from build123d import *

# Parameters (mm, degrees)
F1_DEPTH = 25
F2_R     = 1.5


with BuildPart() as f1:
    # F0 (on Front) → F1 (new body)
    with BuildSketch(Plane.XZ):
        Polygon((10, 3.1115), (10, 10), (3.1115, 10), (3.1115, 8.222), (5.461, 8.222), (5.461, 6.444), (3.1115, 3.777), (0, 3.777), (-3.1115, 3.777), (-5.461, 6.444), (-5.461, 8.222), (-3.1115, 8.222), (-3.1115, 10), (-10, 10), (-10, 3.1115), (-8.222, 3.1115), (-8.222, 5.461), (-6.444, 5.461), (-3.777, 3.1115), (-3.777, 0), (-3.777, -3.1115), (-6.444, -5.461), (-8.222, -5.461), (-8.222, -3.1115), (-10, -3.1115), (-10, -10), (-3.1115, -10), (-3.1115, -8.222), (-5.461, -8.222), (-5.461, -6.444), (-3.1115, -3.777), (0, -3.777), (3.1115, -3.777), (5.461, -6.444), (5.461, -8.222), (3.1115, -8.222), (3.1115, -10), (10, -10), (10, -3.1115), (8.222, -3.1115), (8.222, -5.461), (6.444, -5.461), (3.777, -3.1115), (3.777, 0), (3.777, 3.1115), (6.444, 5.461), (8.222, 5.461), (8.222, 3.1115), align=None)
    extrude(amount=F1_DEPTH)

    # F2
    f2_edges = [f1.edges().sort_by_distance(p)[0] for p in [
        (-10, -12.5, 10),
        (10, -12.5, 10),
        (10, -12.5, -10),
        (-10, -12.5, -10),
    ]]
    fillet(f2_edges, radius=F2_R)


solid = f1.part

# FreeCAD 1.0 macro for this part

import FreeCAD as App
import Part
import Sketcher
from FreeCAD import Vector


def edges_at(feature, points):
    """Names of the edges that pass closest to the given points."""
    edges = feature.Shape.Edges
    near = lambda p: min(range(len(edges)), key=lambda i: edges[i].distToShape(Part.Vertex(*p))[0])
    return sorted({f"Edge{near(p) + 1}" for p in points})

doc = App.newDocument("Part")
body = doc.addObject("PartDesign::Body", "Body")

# Sketch on XZ plane
sketch1 = body.newObject("Sketcher::SketchObject", "Sketch")
sketch1.AttachmentSupport = (doc.getObject("XZ_Plane"), [""])
sketch1.MapMode = "FlatFace"
sketch1.addGeometry([
    Part.LineSegment(Vector(10, 3.1115, 0), Vector(10, 10, 0)),  # 0
    Part.LineSegment(Vector(10, 10, 0), Vector(3.1115, 10, 0)),  # 1
    Part.LineSegment(Vector(3.1115, 10, 0), Vector(3.1115, 8.222, 0)),  # 2
    Part.LineSegment(Vector(3.1115, 8.222, 0), Vector(5.461, 8.222, 0)),  # 3
    Part.LineSegment(Vector(5.461, 8.222, 0), Vector(5.461, 6.444, 0)),  # 4
    Part.LineSegment(Vector(5.461, 6.444, 0), Vector(3.1115, 3.777, 0)),  # 5
    Part.LineSegment(Vector(3.1115, 3.777, 0), Vector(-3.1115, 3.777, 0)),  # 6
    Part.LineSegment(Vector(-3.1115, 3.777, 0), Vector(-5.461, 6.444, 0)),  # 7
    Part.LineSegment(Vector(-5.461, 6.444, 0), Vector(-5.461, 8.222, 0)),  # 8
    Part.LineSegment(Vector(-5.461, 8.222, 0), Vector(-3.1115, 8.222, 0)),  # 9
    Part.LineSegment(Vector(-3.1115, 8.222, 0), Vector(-3.1115, 10, 0)),  # 10
    Part.LineSegment(Vector(-3.1115, 10, 0), Vector(-10, 10, 0)),  # 11
    Part.LineSegment(Vector(-10, 10, 0), Vector(-10, 3.1115, 0)),  # 12
    Part.LineSegment(Vector(-10, 3.1115, 0), Vector(-8.222, 3.1115, 0)),  # 13
    Part.LineSegment(Vector(-8.222, 3.1115, 0), Vector(-8.222, 5.461, 0)),  # 14
    Part.LineSegment(Vector(-8.222, 5.461, 0), Vector(-6.444, 5.461, 0)),  # 15
    Part.LineSegment(Vector(-6.444, 5.461, 0), Vector(-3.777, 3.1115, 0)),  # 16
    Part.LineSegment(Vector(-3.777, 3.1115, 0), Vector(-3.777, -3.1115, 0)),  # 17
    Part.LineSegment(Vector(-3.777, -3.1115, 0), Vector(-6.444, -5.461, 0)),  # 18
    Part.LineSegment(Vector(-6.444, -5.461, 0), Vector(-8.222, -5.461, 0)),  # 19
    Part.LineSegment(Vector(-8.222, -5.461, 0), Vector(-8.222, -3.1115, 0)),  # 20
    Part.LineSegment(Vector(-8.222, -3.1115, 0), Vector(-10, -3.1115, 0)),  # 21
    Part.LineSegment(Vector(-10, -3.1115, 0), Vector(-10, -10, 0)),  # 22
    Part.LineSegment(Vector(-10, -10, 0), Vector(-3.1115, -10, 0)),  # 23
    Part.LineSegment(Vector(-3.1115, -10, 0), Vector(-3.1115, -8.222, 0)),  # 24
    Part.LineSegment(Vector(-3.1115, -8.222, 0), Vector(-5.461, -8.222, 0)),  # 25
    Part.LineSegment(Vector(-5.461, -8.222, 0), Vector(-5.461, -6.444, 0)),  # 26
    Part.LineSegment(Vector(-5.461, -6.444, 0), Vector(-3.1115, -3.777, 0)),  # 27
    Part.LineSegment(Vector(-3.1115, -3.777, 0), Vector(3.1115, -3.777, 0)),  # 28
    Part.LineSegment(Vector(3.1115, -3.777, 0), Vector(5.461, -6.444, 0)),  # 29
    Part.LineSegment(Vector(5.461, -6.444, 0), Vector(5.461, -8.222, 0)),  # 30
    Part.LineSegment(Vector(5.461, -8.222, 0), Vector(3.1115, -8.222, 0)),  # 31
    Part.LineSegment(Vector(3.1115, -8.222, 0), Vector(3.1115, -10, 0)),  # 32
    Part.LineSegment(Vector(3.1115, -10, 0), Vector(10, -10, 0)),  # 33
    Part.LineSegment(Vector(10, -10, 0), Vector(10, -3.1115, 0)),  # 34
    Part.LineSegment(Vector(10, -3.1115, 0), Vector(8.222, -3.1115, 0)),  # 35
    Part.LineSegment(Vector(8.222, -3.1115, 0), Vector(8.222, -5.461, 0)),  # 36
    Part.LineSegment(Vector(8.222, -5.461, 0), Vector(6.444, -5.461, 0)),  # 37
    Part.LineSegment(Vector(6.444, -5.461, 0), Vector(3.777, -3.1115, 0)),  # 38
    Part.LineSegment(Vector(3.777, -3.1115, 0), Vector(3.777, 3.1115, 0)),  # 39
    Part.LineSegment(Vector(3.777, 3.1115, 0), Vector(6.444, 5.461, 0)),  # 40
    Part.LineSegment(Vector(6.444, 5.461, 0), Vector(8.222, 5.461, 0)),  # 41
    Part.LineSegment(Vector(8.222, 5.461, 0), Vector(8.222, 3.1115, 0)),  # 42
    Part.LineSegment(Vector(8.222, 3.1115, 0), Vector(10, 3.1115, 0)),  # 43
], False)
sketch1.addConstraint([
    Sketcher.Constraint("Coincident", 0, 2, 1, 1),
    Sketcher.Constraint("Coincident", 1, 2, 2, 1),
    Sketcher.Constraint("Coincident", 2, 2, 3, 1),
    Sketcher.Constraint("Coincident", 3, 2, 4, 1),
    Sketcher.Constraint("Coincident", 4, 2, 5, 1),
    Sketcher.Constraint("Coincident", 5, 2, 6, 1),
    Sketcher.Constraint("Coincident", 6, 2, 7, 1),
    Sketcher.Constraint("Coincident", 7, 2, 8, 1),
    Sketcher.Constraint("Coincident", 8, 2, 9, 1),
    Sketcher.Constraint("Coincident", 9, 2, 10, 1),
    Sketcher.Constraint("Coincident", 10, 2, 11, 1),
    Sketcher.Constraint("Coincident", 11, 2, 12, 1),
    Sketcher.Constraint("Coincident", 12, 2, 13, 1),
    Sketcher.Constraint("Coincident", 13, 2, 14, 1),
    Sketcher.Constraint("Coincident", 14, 2, 15, 1),
    Sketcher.Constraint("Coincident", 15, 2, 16, 1),
    Sketcher.Constraint("Coincident", 16, 2, 17, 1),
    Sketcher.Constraint("Coincident", 17, 2, 18, 1),
    Sketcher.Constraint("Coincident", 18, 2, 19, 1),
    Sketcher.Constraint("Coincident", 19, 2, 20, 1),
    Sketcher.Constraint("Coincident", 20, 2, 21, 1),
    Sketcher.Constraint("Coincident", 21, 2, 22, 1),
    Sketcher.Constraint("Coincident", 22, 2, 23, 1),
    Sketcher.Constraint("Coincident", 23, 2, 24, 1),
    Sketcher.Constraint("Coincident", 24, 2, 25, 1),
    Sketcher.Constraint("Coincident", 25, 2, 26, 1),
    Sketcher.Constraint("Coincident", 26, 2, 27, 1),
    Sketcher.Constraint("Coincident", 27, 2, 28, 1),
    Sketcher.Constraint("Coincident", 28, 2, 29, 1),
    Sketcher.Constraint("Coincident", 29, 2, 30, 1),
    Sketcher.Constraint("Coincident", 30, 2, 31, 1),
    Sketcher.Constraint("Coincident", 31, 2, 32, 1),
    Sketcher.Constraint("Coincident", 32, 2, 33, 1),
    Sketcher.Constraint("Coincident", 33, 2, 34, 1),
    Sketcher.Constraint("Coincident", 34, 2, 35, 1),
    Sketcher.Constraint("Coincident", 35, 2, 36, 1),
    Sketcher.Constraint("Coincident", 36, 2, 37, 1),
    Sketcher.Constraint("Coincident", 37, 2, 38, 1),
    Sketcher.Constraint("Coincident", 38, 2, 39, 1),
    Sketcher.Constraint("Coincident", 39, 2, 40, 1),
    Sketcher.Constraint("Coincident", 40, 2, 41, 1),
    Sketcher.Constraint("Coincident", 41, 2, 42, 1),
    Sketcher.Constraint("Coincident", 42, 2, 43, 1),
    Sketcher.Constraint("Coincident", 43, 2, 0, 1),
    Sketcher.Constraint("Vertical", 0),
    Sketcher.Constraint("Horizontal", 1),
    Sketcher.Constraint("Vertical", 2),
    Sketcher.Constraint("Horizontal", 3),
    Sketcher.Constraint("Vertical", 4),
    Sketcher.Constraint("Horizontal", 6),
    Sketcher.Constraint("Vertical", 8),
    Sketcher.Constraint("Horizontal", 9),
    Sketcher.Constraint("Vertical", 10),
    Sketcher.Constraint("Horizontal", 11),
    Sketcher.Constraint("Vertical", 12),
    Sketcher.Constraint("Horizontal", 13),
    Sketcher.Constraint("Vertical", 14),
    Sketcher.Constraint("Horizontal", 15),
    Sketcher.Constraint("Vertical", 17),
    Sketcher.Constraint("Horizontal", 19),
    Sketcher.Constraint("Vertical", 20),
    Sketcher.Constraint("Horizontal", 21),
    Sketcher.Constraint("Vertical", 22),
    Sketcher.Constraint("Horizontal", 23),
    Sketcher.Constraint("Vertical", 24),
    Sketcher.Constraint("Horizontal", 25),
    Sketcher.Constraint("Vertical", 26),
    Sketcher.Constraint("Horizontal", 28),
    Sketcher.Constraint("Vertical", 30),
    Sketcher.Constraint("Horizontal", 31),
    Sketcher.Constraint("Vertical", 32),
    Sketcher.Constraint("Horizontal", 33),
    Sketcher.Constraint("Vertical", 34),
    Sketcher.Constraint("Horizontal", 35),
    Sketcher.Constraint("Vertical", 36),
    Sketcher.Constraint("Horizontal", 37),
    Sketcher.Constraint("Vertical", 39),
    Sketcher.Constraint("Horizontal", 41),
    Sketcher.Constraint("Vertical", 42),
    Sketcher.Constraint("Horizontal", 43),
    Sketcher.Constraint("Symmetric", 0, 2, 22, 2, -1, 1),
    Sketcher.Constraint("Symmetric", 2, 2, 24, 2, -1, 1),
    Sketcher.Constraint("Symmetric", 4, 2, 26, 2, -1, 1),
    Sketcher.Constraint("Symmetric", 5, 2, 27, 2, -1, 1),
    Sketcher.Constraint("Symmetric", 7, 2, 29, 2, -1, 1),
    Sketcher.Constraint("Symmetric", 9, 2, 31, 2, -1, 1),
    Sketcher.Constraint("Symmetric", 11, 2, 33, 2, -1, 1),
    Sketcher.Constraint("Symmetric", 13, 2, 35, 2, -1, 1),
    Sketcher.Constraint("Symmetric", 15, 2, 37, 2, -1, 1),
    Sketcher.Constraint("Symmetric", 16, 2, 38, 2, -1, 1),
    Sketcher.Constraint("Symmetric", 18, 2, 40, 2, -1, 1),
    Sketcher.Constraint("Symmetric", 20, 2, 42, 2, -1, 1),
    Sketcher.Constraint("Symmetric", 4, 2, 7, 2, -2),
    Sketcher.Constraint("Symmetric", 2, 2, 9, 2, -2),
    Sketcher.Constraint("Symmetric", 0, 2, 11, 2, -2),
    Sketcher.Constraint("Symmetric", 20, 2, 35, 2, -2),
    Sketcher.Constraint("Symmetric", 18, 2, 37, 2, -2),
    Sketcher.Constraint("Perpendicular", 5, 16),
    Sketcher.Constraint("Perpendicular", 7, 18),
    Sketcher.Constraint("Perpendicular", 18, 29),
    Sketcher.Constraint("Perpendicular", 29, 40),
    Sketcher.Constraint("Horizontal", 13, 2, 16, 2),
    Sketcher.Constraint("Horizontal", 17, 2, 20, 2),
    Sketcher.Constraint("Vertical", 2, 2, 5, 2),
    Sketcher.Constraint("Equal", 13, 15),
    Sketcher.Constraint("Equal", 33, 0),
    Sketcher.Constraint("Equal", 43, 2),
    Sketcher.Constraint("Equal", 2, 4),
    Sketcher.Constraint("Equal", 31, 14),
    Sketcher.Constraint("Equal", 28, 17),
    Sketcher.Constraint("DistanceX", -1, 1, 0, 2, 10.0),
    Sketcher.Constraint("DistanceX", 6, 2, 6, 1, 6.223),
    Sketcher.Constraint("DistanceX", 13, 1, 13, 2, 1.778),
    Sketcher.Constraint("DistanceX", 3, 1, 3, 2, 2.3495),
    Sketcher.Constraint("DistanceY", -1, 1, 5, 2, 3.777),
])
pad1 = body.newObject("PartDesign::Pad", "Pad")
pad1.Profile = sketch1
pad1.Length = 25
doc.recompute()

fillet = body.newObject("PartDesign::Fillet", "Fillet")
fillet.Base = (pad1, edges_at(pad1, [
    (-10, -12.5, 10),
    (10, -12.5, 10),
    (10, -12.5, -10),
    (-10, -12.5, -10),
]))
fillet.Radius = 1.5

doc.recompute()
